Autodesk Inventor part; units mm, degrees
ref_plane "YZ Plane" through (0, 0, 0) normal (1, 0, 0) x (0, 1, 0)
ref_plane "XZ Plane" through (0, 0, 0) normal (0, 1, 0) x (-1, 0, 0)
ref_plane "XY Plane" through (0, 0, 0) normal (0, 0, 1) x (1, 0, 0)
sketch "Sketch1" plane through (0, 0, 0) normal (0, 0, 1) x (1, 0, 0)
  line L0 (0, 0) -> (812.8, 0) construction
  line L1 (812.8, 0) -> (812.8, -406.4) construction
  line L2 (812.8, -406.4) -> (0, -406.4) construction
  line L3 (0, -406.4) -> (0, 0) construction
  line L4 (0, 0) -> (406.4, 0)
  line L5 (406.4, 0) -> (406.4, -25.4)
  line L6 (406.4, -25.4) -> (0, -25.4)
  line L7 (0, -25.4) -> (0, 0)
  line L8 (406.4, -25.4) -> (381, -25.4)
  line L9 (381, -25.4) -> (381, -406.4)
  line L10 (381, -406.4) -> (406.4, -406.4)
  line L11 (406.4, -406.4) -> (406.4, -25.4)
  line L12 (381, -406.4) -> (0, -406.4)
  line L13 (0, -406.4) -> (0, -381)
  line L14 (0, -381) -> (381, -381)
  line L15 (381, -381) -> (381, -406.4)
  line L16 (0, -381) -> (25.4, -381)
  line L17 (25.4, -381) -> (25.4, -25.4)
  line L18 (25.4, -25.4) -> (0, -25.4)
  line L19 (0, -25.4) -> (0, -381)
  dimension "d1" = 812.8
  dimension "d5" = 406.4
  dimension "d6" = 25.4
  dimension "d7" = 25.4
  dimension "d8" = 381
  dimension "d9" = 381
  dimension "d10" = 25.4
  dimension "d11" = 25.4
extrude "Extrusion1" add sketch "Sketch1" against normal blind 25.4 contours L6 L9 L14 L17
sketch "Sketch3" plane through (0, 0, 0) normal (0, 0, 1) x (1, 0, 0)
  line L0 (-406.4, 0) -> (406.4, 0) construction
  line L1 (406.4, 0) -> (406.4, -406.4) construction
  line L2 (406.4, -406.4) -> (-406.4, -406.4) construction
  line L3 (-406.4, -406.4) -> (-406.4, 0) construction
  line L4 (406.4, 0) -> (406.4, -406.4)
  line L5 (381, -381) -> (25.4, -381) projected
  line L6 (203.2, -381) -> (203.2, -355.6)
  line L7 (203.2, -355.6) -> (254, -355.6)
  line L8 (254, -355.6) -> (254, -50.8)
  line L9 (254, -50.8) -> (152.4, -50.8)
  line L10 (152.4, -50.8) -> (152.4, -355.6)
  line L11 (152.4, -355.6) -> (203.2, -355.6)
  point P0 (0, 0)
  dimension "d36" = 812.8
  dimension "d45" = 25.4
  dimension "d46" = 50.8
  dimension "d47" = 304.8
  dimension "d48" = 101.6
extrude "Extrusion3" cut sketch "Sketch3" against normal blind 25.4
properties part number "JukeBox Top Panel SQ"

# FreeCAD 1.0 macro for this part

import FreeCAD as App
import Part
import Sketcher
from FreeCAD import Vector
Q = App.Units.Quantity


def add_polygon(sketch, points):
    """Adds a closed chain of lines whose ends are joined by coincident constraints."""
    first, n = sketch.GeometryCount, len(points)
    for a, b in zip(points, points[1:] + points[:1]):
        sketch.addGeometry(Part.LineSegment(App.Vector(*a, 0), App.Vector(*b, 0)), False)
    for i in range(n):
        sketch.addConstraint(Sketcher.Constraint("Coincident", first + i, 2, first + (i + 1) % n, 1))

doc = App.newDocument("Part")
body = doc.addObject("PartDesign::Body", "Body")

# Sketch on XY plane
sketch1 = body.newObject("Sketcher::SketchObject", "Sketch")
sketch1.AttachmentSupport = (doc.getObject("XY_Plane"), [""])
sketch1.MapMode = "FlatFace"
add_polygon(sketch1, [(381, -25), (25, -25), (25, -381), (381, -381)])  # lines 0-3
sketch1.addConstraint(Sketcher.Constraint("Horizontal", 0))
sketch1.addConstraint(Sketcher.Constraint("Vertical", 1))
sketch1.addConstraint(Sketcher.Constraint("Horizontal", 2))
sketch1.addConstraint(Sketcher.Constraint("Vertical", 3))
sketch1.addConstraint(Sketcher.Constraint("Equal", 2, 1))
sketch1.addConstraint(Sketcher.Constraint("DistanceX", -1, 1, 0, 2, Q("1 in")))
sketch1.addConstraint(Sketcher.Constraint("DistanceY", 0, 2, -1, 1, Q("1 in")))
sketch1.addConstraint(Sketcher.Constraint("DistanceY", 1, 2, -1, 1, Q("15 in")))
pad1 = body.newObject("PartDesign::Pad", "Pad")
pad1.Profile = sketch1
pad1.Length = Q("1 in")
pad1.Reversed = True

# Sketch on XY plane
sketch2 = body.newObject("Sketcher::SketchObject", "Sketch001")
sketch2.AttachmentSupport = (doc.getObject("XY_Plane"), [""])
sketch2.MapMode = "FlatFace"
add_polygon(sketch2, [(152, -356), (254, -356), (254, -51), (152, -51)])  # lines 0-3
sketch2.addConstraint(Sketcher.Constraint("Horizontal", 0))
sketch2.addConstraint(Sketcher.Constraint("Vertical", 1))
sketch2.addConstraint(Sketcher.Constraint("Horizontal", 2))
sketch2.addConstraint(Sketcher.Constraint("Vertical", 3))
sketch2.addConstraint(Sketcher.Constraint("DistanceX", 0, 1, 0, 2, Q("4 in")))
sketch2.addConstraint(Sketcher.Constraint("DistanceY", 1, 1, 1, 2, Q("12 in")))
sketch2.addConstraint(Sketcher.Constraint("DistanceY", 1, 2, -1, 1, Q("2 in")))
sketch2.addConstraint(Sketcher.Constraint("DistanceX", -1, 1, 0, 2, Q("10 in")))
pocket1 = body.newObject("PartDesign::Pocket", "Pocket")
pocket1.Profile = sketch2
pocket1.Length = Q("1 in")

doc.recompute()
